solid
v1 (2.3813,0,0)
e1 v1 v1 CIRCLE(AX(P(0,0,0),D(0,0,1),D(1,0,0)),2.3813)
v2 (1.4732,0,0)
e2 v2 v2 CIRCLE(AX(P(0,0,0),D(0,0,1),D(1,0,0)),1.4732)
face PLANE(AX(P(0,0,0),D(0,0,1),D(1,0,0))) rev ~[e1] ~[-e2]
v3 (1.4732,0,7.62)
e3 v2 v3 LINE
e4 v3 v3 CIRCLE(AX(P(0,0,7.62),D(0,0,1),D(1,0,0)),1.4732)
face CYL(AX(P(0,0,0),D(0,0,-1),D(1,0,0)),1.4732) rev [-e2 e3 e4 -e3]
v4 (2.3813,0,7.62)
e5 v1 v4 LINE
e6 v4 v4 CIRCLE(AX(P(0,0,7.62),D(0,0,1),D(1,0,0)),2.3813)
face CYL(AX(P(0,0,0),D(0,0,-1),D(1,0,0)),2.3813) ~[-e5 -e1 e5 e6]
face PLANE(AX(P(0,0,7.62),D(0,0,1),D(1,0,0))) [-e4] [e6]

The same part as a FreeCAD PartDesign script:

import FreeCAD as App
import Part
import Sketcher
Q = App.Units.Quantity

doc = App.newDocument("Part")
body = doc.addObject("PartDesign::Body", "Body")

# Sketch on XY plane
sketch1 = body.newObject("Sketcher::SketchObject", "Sketch")
sketch1.AttachmentSupport = (doc.getObject("XY_Plane"), [""])
sketch1.MapMode = "FlatFace"
sketch1.addGeometry(Part.Circle(App.Vector(0, 0, 0), App.Vector(0, 0, 1), 2.3813), False)
sketch1.addGeometry(Part.Circle(App.Vector(0, 0, 0), App.Vector(0, 0, 1), 1.4732), False)
sketch1.addConstraint(Sketcher.Constraint("Coincident", 0, 3, -1, 1))
sketch1.addConstraint(Sketcher.Constraint("Coincident", 1, 3, -1, 1))
sketch1.addConstraint(Sketcher.Constraint("Diameter", 0, Q("0.1875 in")))
sketch1.addConstraint(Sketcher.Constraint("Diameter", 1, Q("0.116 in")))
pad1 = body.newObject("PartDesign::Pad", "Pad")
pad1.Profile = sketch1
pad1.Length = Q("0.3 in")

doc.recompute()
